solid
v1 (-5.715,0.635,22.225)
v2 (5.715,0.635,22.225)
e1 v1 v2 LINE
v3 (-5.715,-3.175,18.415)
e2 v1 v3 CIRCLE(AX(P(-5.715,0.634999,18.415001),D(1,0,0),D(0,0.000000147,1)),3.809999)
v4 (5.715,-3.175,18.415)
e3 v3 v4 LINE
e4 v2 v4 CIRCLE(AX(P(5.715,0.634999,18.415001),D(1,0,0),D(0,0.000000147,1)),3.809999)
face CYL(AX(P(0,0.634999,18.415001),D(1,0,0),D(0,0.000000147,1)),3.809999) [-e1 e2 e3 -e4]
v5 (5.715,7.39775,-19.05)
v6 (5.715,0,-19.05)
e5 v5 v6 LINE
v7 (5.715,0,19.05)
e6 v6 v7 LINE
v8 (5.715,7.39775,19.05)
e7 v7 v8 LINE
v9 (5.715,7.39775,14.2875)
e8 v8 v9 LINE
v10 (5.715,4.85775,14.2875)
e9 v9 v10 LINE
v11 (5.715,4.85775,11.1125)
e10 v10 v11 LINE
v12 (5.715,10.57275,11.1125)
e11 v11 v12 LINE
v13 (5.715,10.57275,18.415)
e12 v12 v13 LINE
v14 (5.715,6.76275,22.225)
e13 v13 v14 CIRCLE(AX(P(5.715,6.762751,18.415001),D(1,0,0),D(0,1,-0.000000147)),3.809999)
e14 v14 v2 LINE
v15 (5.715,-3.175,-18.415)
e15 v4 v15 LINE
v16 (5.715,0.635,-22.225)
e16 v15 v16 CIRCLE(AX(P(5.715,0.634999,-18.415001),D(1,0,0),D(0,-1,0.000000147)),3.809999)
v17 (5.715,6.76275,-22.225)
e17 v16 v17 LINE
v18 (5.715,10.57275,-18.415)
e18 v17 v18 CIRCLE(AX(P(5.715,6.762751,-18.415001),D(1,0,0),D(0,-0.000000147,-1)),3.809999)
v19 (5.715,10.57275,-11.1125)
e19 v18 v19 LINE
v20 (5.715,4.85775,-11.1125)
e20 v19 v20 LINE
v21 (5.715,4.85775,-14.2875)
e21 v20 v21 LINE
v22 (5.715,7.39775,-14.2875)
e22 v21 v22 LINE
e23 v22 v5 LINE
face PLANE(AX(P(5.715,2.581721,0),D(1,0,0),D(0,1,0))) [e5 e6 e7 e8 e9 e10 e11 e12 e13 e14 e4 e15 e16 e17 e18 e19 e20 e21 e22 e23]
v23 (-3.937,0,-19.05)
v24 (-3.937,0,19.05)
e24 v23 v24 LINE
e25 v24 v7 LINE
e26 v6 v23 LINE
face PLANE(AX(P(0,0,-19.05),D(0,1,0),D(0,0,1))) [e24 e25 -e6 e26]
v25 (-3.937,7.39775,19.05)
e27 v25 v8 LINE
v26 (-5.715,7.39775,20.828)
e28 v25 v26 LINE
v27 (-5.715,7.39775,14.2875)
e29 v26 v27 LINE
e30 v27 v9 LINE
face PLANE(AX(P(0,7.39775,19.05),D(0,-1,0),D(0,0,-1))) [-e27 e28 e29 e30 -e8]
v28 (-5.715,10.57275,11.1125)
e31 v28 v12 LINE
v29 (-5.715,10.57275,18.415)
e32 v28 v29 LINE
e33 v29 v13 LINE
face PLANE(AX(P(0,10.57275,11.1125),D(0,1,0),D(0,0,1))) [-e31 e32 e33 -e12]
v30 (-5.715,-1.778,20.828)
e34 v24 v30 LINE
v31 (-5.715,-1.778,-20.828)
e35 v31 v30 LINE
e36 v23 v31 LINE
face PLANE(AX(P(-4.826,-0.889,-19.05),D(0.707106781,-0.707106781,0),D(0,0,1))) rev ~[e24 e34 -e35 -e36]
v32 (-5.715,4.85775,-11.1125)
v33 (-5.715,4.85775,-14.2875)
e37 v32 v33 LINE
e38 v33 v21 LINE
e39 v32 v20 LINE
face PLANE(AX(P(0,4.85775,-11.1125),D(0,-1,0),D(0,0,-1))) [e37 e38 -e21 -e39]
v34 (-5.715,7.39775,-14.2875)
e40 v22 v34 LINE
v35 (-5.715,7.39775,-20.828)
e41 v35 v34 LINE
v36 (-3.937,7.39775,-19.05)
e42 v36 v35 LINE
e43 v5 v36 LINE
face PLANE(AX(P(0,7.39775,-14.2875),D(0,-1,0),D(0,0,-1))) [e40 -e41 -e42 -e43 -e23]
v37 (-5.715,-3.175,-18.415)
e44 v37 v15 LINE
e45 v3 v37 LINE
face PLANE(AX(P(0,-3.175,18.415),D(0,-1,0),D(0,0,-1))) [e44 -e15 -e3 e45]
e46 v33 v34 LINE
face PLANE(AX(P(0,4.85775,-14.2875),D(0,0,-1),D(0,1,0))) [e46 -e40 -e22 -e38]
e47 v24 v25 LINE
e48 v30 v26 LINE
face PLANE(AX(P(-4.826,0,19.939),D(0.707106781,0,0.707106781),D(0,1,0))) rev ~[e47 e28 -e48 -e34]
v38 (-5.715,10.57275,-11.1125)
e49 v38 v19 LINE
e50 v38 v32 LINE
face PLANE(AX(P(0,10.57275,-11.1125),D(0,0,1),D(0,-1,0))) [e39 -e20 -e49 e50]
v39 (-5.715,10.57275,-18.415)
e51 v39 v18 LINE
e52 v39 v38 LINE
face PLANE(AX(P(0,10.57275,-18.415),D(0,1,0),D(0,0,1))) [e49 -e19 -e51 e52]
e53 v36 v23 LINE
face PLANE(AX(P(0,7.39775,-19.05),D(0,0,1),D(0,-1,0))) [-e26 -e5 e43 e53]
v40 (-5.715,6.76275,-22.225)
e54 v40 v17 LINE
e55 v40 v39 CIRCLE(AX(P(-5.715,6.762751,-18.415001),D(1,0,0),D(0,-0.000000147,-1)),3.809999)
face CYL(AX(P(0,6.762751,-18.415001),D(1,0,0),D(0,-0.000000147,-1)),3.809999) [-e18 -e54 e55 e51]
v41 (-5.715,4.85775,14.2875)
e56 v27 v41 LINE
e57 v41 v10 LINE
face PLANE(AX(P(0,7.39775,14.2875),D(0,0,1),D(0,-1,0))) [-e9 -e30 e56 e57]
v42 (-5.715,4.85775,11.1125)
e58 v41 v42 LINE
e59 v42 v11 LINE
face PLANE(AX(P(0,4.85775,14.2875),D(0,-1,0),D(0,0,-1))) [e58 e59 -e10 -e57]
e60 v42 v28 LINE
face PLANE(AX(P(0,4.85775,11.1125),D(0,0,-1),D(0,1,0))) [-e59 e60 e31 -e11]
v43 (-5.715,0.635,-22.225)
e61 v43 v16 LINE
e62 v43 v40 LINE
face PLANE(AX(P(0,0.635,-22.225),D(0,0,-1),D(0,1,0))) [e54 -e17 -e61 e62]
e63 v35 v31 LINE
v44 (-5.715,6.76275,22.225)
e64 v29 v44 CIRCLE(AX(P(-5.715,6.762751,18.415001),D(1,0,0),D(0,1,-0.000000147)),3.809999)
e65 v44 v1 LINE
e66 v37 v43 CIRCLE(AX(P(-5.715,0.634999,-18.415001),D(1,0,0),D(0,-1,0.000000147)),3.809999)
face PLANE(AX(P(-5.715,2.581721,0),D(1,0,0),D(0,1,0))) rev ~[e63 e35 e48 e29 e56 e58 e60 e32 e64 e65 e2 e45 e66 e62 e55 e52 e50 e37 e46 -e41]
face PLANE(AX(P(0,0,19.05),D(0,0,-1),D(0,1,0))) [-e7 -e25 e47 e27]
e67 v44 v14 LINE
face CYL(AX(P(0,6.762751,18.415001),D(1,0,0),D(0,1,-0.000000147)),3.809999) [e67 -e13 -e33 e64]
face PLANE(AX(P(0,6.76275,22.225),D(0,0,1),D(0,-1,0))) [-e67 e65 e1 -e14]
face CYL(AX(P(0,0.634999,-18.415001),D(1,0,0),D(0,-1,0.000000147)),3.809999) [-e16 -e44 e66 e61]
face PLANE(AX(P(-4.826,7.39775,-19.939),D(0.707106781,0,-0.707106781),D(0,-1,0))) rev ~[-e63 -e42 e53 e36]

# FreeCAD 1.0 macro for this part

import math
import FreeCAD as App
import Part
import Sketcher

V = App.Vector
Q = App.Units.Quantity


def edges_at(feature, points):
    """Names of the edges that pass closest to the given points."""
    edges = feature.Shape.Edges
    near = lambda p: min(range(len(edges)), key=lambda i: edges[i].distToShape(Part.Vertex(*p))[0])
    return sorted({f"Edge{near(p) + 1}" for p in points})

doc = App.newDocument("Part")
params = doc.addObject("Spreadsheet::Sheet", "Params")
for row, (alias, value) in enumerate([
    ("sketch1_radius", "0.15 in"),
    ("sketch1_width", "0.1 in"),
    ("sketch1_height", "1.5 in"),
    ("sketch1_height2", "1.45 in"),
    ("sketch1_width2", "0.225 in"),
    ("pad1_length", "0.45 in"),
    ("chamfer_size", "0.07 in"),
], start=1):
    params.set(f"A{row}", alias)
    params.set(f"B{row}", "=" + value)
    params.setAlias(f"B{row}", alias)

body = doc.addObject("PartDesign::Body", "Body")

sketch1 = body.newObject("Sketcher::SketchObject", "Sketch")
sketch1.AttachmentSupport = (doc.getObject("YZ_Plane"), [""])
sketch1.MapMode = "FlatFace"
sketch1.addGeometry([
    Part.LineSegment(V(0, -19.05, 0), V(0, 19.05, 0)),
    Part.LineSegment(V(0, 19.05, 0), V(7.39775, 19.05, 0)),
    Part.LineSegment(V(7.39775, 19.05, 0), V(7.39775, 14.2875, 0)),
    Part.LineSegment(V(7.39775, 14.2875, 0), V(4.85775, 14.2875, 0)),
    Part.LineSegment(V(4.85775, 14.2875, 0), V(4.85775, 11.1125, 0)),
    Part.LineSegment(V(4.85775, 11.1125, 0), V(10.57275, 11.1125, 0)),
    Part.LineSegment(V(10.57275, 11.1125, 0), V(10.57275, 18.415, 0)),
    Part.ArcOfCircle(Part.Circle(V(6.762751, 18.415001, 0), V(0, 0, 1), 3.809999), math.radians(-0.000008), math.radians(90.000008)),
    Part.LineSegment(V(6.76275, 22.225, 0), V(0.635, 22.225, 0)),
    Part.ArcOfCircle(Part.Circle(V(0.634999, 18.415001, 0), V(0, 0, 1), 3.809999), math.radians(89.999992), math.radians(180.000008)),
    Part.LineSegment(V(-3.175, 18.415, 0), V(-3.175, -18.415, 0)),
    Part.ArcOfCircle(Part.Circle(V(0.634999, -18.415001, 0), V(0, 0, 1), 3.809999), math.radians(179.999992), math.radians(270.000008)),
    Part.LineSegment(V(0.635, -22.225, 0), V(6.76275, -22.225, 0)),
    Part.ArcOfCircle(Part.Circle(V(6.762751, -18.415001, 0), V(0, 0, 1), 3.809999), math.radians(-90.000008), math.radians(0.000008)),
    Part.LineSegment(V(10.57275, -18.415, 0), V(10.57275, -11.1125, 0)),
    Part.LineSegment(V(10.57275, -11.1125, 0), V(4.85775, -11.1125, 0)),
    Part.LineSegment(V(4.85775, -11.1125, 0), V(4.85775, -14.2875, 0)),
    Part.LineSegment(V(4.85775, -14.2875, 0), V(7.39775, -14.2875, 0)),
    Part.LineSegment(V(7.39775, -14.2875, 0), V(7.39775, -19.05, 0)),
    Part.LineSegment(V(7.39775, -19.05, 0), V(0, -19.05, 0)),
], False)
sketch1.addConstraint([
    Sketcher.Constraint("Coincident", 0, 2, 1, 1),
    Sketcher.Constraint("Coincident", 1, 2, 2, 1),
    Sketcher.Constraint("Coincident", 2, 2, 3, 1),
    Sketcher.Constraint("Coincident", 3, 2, 4, 1),
    Sketcher.Constraint("Coincident", 4, 2, 5, 1),
    Sketcher.Constraint("Coincident", 5, 2, 6, 1),
    Sketcher.Constraint("Tangent", 6, 2, 7, 1),
    Sketcher.Constraint("Tangent", 7, 2, 8, 1),
    Sketcher.Constraint("Tangent", 8, 2, 9, 1),
    Sketcher.Constraint("Tangent", 9, 2, 10, 1),
    Sketcher.Constraint("Tangent", 10, 2, 11, 1),
    Sketcher.Constraint("Tangent", 11, 2, 12, 1),
    Sketcher.Constraint("Tangent", 12, 2, 13, 1),
    Sketcher.Constraint("Tangent", 13, 2, 14, 1),
    Sketcher.Constraint("Coincident", 14, 2, 15, 1),
    Sketcher.Constraint("Coincident", 15, 2, 16, 1),
    Sketcher.Constraint("Coincident", 16, 2, 17, 1),
    Sketcher.Constraint("Coincident", 17, 2, 18, 1),
    Sketcher.Constraint("Coincident", 18, 2, 19, 1),
    Sketcher.Constraint("Coincident", 19, 2, 0, 1),
    Sketcher.Constraint("Vertical", 0),
    Sketcher.Constraint("Horizontal", 1),
    Sketcher.Constraint("Vertical", 2),
    Sketcher.Constraint("Horizontal", 3),
    Sketcher.Constraint("Vertical", 4),
    Sketcher.Constraint("Horizontal", 5),
    Sketcher.Constraint("Vertical", 6),
    Sketcher.Constraint("Horizontal", 8),
    Sketcher.Constraint("Vertical", 10),
    Sketcher.Constraint("Horizontal", 12),
    Sketcher.Constraint("Vertical", 14),
    Sketcher.Constraint("Horizontal", 15),
    Sketcher.Constraint("Vertical", 16),
    Sketcher.Constraint("Horizontal", 17),
    Sketcher.Constraint("Vertical", 18),
    Sketcher.Constraint("Horizontal", 19),
    Sketcher.Constraint("Equal", 7, 9),
    Sketcher.Constraint("Equal", 9, 11),
    Sketcher.Constraint("Equal", 11, 13),
    Sketcher.Constraint("Symmetric", 0, 2, 19, 2, -1, 1),
    Sketcher.Constraint("Symmetric", 7, 3, 13, 3, -1),
    Sketcher.Constraint("Symmetric", 4, 2, 15, 2, -1),
    Sketcher.Constraint("Symmetric", 2, 2, 17, 2, -1),
    Sketcher.Constraint("Radius", 7, Q("0.15 in")),
    Sketcher.Constraint("DistanceX", 3, 2, 3, 1, Q("0.1 in")),
    Sketcher.Constraint("DistanceY", 0, 1, 0, 2, Q("1.5 in")),
    Sketcher.Constraint("DistanceY", 10, 2, 10, 1, Q("1.45 in")),
    Sketcher.Constraint("DistanceX", 5, 1, 5, 2, Q("0.225 in")),
    Sketcher.Constraint("DistanceY", 2, 2, 2, 1, Q("0.1875 in")),
    Sketcher.Constraint("DistanceY", 4, 2, 4, 1, Q("0.125 in")),
    Sketcher.Constraint("DistanceX", -1, 1, 9, 3, Q("0.025 in")),
    Sketcher.Constraint("DistanceX", 1, 1, 1, 2, 7.39775),
])
sketch1.setExpression("Constraints[43]", "Params.sketch1_radius")
sketch1.setExpression("Constraints[44]", "Params.sketch1_width")
sketch1.setExpression("Constraints[45]", "Params.sketch1_height")
sketch1.setExpression("Constraints[46]", "Params.sketch1_height2")
sketch1.setExpression("Constraints[47]", "Params.sketch1_width2")
pad1 = body.newObject("PartDesign::Pad", "Pad")
pad1.Profile = sketch1
pad1.setExpression("Length", "Params.pad1_length")
pad1.Midplane = True
doc.recompute()

chamfer = body.newObject("PartDesign::Chamfer", "Chamfer")
chamfer.Base = (pad1, edges_at(pad1, [(-5.715, 3.699, -19.05), (-5.715, 0, 0), (-5.715, 3.699, 19.05)]))
chamfer.setExpression("Size", "Params.chamfer_size")

doc.recompute()
